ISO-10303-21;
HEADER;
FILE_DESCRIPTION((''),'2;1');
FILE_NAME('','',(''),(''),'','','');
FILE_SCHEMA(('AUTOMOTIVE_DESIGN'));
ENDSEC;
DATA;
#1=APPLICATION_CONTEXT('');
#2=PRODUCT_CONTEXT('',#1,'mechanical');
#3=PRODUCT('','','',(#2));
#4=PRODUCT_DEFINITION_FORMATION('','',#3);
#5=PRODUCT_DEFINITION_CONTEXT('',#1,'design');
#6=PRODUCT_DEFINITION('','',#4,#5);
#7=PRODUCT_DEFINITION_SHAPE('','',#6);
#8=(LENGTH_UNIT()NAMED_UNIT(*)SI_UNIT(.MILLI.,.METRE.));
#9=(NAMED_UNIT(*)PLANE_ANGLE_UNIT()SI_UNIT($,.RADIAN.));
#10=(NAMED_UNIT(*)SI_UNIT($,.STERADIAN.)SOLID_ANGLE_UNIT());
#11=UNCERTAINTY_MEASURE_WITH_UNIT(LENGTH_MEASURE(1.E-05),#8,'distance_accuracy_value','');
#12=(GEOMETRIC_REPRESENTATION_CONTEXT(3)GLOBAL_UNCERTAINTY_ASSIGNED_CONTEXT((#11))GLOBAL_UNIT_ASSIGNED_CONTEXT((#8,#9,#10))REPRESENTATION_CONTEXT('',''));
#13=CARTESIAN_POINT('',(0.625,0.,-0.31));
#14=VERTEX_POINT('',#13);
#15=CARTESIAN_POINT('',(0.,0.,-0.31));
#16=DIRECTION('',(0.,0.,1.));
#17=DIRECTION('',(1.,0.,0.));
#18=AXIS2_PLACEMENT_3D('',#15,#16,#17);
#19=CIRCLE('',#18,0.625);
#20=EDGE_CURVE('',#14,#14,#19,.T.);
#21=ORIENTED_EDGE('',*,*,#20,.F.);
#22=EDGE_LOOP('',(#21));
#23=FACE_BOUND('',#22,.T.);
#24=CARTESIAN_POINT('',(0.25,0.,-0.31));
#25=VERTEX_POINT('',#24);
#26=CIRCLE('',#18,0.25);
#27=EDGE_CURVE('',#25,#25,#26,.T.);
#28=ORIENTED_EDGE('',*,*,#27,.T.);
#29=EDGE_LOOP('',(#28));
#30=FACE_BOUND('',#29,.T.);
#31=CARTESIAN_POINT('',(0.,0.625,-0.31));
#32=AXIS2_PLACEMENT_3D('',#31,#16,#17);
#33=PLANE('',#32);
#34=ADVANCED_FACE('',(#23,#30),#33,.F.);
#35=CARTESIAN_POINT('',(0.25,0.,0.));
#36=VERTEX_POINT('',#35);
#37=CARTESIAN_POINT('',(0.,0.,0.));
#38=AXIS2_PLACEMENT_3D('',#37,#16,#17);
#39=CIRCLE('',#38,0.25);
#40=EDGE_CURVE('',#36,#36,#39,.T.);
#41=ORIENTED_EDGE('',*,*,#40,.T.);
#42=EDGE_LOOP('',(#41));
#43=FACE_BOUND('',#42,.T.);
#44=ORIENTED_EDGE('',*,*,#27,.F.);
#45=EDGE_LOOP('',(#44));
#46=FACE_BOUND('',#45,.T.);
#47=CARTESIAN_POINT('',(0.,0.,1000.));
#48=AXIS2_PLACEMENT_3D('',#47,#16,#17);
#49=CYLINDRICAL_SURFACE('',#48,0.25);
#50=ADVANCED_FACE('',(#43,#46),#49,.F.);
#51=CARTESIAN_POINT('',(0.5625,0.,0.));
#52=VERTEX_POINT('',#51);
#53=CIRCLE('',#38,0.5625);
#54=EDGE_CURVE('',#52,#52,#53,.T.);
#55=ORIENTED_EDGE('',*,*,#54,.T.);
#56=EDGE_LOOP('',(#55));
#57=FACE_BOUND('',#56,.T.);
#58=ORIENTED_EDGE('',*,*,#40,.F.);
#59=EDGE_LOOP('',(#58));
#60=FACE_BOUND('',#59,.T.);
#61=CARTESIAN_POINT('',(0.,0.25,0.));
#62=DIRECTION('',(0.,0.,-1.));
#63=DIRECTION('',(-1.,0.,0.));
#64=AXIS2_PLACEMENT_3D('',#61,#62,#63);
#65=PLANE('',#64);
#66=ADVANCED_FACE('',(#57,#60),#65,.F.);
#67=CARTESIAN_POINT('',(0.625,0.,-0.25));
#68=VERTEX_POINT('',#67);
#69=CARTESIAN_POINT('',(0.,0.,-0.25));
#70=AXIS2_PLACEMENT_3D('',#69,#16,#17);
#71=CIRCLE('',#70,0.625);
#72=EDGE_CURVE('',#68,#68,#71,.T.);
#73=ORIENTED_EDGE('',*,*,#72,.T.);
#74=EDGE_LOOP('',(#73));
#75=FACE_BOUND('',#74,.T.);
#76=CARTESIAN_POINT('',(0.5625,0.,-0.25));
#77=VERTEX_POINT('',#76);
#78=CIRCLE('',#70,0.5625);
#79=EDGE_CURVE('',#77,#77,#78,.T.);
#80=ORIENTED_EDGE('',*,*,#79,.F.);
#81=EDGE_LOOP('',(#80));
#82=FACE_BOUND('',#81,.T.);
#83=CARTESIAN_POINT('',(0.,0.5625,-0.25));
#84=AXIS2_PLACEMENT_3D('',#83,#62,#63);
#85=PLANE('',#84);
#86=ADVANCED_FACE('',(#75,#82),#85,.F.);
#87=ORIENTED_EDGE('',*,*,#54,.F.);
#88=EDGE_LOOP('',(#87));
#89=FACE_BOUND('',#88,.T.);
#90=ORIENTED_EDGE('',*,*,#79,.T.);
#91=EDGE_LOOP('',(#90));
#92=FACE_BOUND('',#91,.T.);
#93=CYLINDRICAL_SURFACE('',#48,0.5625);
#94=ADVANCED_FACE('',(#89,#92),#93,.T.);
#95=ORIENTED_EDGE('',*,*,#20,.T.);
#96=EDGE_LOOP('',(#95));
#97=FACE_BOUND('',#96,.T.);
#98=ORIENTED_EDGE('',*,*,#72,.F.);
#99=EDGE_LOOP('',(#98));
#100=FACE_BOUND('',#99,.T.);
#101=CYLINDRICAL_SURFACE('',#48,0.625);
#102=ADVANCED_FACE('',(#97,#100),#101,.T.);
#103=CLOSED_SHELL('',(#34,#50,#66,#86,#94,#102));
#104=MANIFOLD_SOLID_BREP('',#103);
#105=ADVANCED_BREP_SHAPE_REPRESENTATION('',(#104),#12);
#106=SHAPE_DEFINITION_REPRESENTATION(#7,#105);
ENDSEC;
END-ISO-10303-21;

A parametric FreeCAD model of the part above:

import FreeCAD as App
import Part
import Sketcher


def add_polygon(sketch, points):
    """Adds a closed chain of lines whose ends are joined by coincident constraints."""
    first, n = sketch.GeometryCount, len(points)
    for a, b in zip(points, points[1:] + points[:1]):
        sketch.addGeometry(Part.LineSegment(App.Vector(*a, 0), App.Vector(*b, 0)), False)
    for i in range(n):
        sketch.addConstraint(Sketcher.Constraint("Coincident", first + i, 2, first + (i + 1) % n, 1))

doc = App.newDocument("Part")
body = doc.addObject("PartDesign::Body", "Body")

# Sketch on YZ plane
sketch1 = body.newObject("Sketcher::SketchObject", "Sketch")
sketch1.AttachmentSupport = (doc.getObject("YZ_Plane"), [""])
sketch1.MapMode = "FlatFace"
add_polygon(sketch1, [(0.5625, 0), (0.25, 0), (0.25, -0.31), (0.625, -0.31), (0.625, -0.25), (0.5625, -0.25)])  # lines 0-5
sketch1.addConstraint(Sketcher.Constraint("Horizontal", 0))
sketch1.addConstraint(Sketcher.Constraint("Vertical", 1))
sketch1.addConstraint(Sketcher.Constraint("Horizontal", 2))
sketch1.addConstraint(Sketcher.Constraint("Vertical", 3))
sketch1.addConstraint(Sketcher.Constraint("Horizontal", 4))
sketch1.addConstraint(Sketcher.Constraint("Vertical", 5))
sketch1.addConstraint(Sketcher.Constraint("PointOnObject", 0, 2, -1))
sketch1.addConstraint(Sketcher.Constraint("DistanceY", 1, 2, 1, 1, 0.31))
sketch1.addConstraint(Sketcher.Constraint("DistanceY", 3, 1, 3, 2, 0.06))
sketch1.addConstraint(Sketcher.Constraint("DistanceX", 2, 1, 2, 2, 0.375))
sketch1.addConstraint(Sketcher.Constraint("DistanceX", -1, 1, 0, 2, 0.25))
sketch1.addConstraint(Sketcher.Constraint("DistanceX", 0, 2, 0, 1, 0.3125))
revolution = body.newObject("PartDesign::Revolution", "Revolution")
revolution.Profile = sketch1
revolution.ReferenceAxis = (sketch1, ["V_Axis"])
revolution.Angle = 360

doc.recompute()
